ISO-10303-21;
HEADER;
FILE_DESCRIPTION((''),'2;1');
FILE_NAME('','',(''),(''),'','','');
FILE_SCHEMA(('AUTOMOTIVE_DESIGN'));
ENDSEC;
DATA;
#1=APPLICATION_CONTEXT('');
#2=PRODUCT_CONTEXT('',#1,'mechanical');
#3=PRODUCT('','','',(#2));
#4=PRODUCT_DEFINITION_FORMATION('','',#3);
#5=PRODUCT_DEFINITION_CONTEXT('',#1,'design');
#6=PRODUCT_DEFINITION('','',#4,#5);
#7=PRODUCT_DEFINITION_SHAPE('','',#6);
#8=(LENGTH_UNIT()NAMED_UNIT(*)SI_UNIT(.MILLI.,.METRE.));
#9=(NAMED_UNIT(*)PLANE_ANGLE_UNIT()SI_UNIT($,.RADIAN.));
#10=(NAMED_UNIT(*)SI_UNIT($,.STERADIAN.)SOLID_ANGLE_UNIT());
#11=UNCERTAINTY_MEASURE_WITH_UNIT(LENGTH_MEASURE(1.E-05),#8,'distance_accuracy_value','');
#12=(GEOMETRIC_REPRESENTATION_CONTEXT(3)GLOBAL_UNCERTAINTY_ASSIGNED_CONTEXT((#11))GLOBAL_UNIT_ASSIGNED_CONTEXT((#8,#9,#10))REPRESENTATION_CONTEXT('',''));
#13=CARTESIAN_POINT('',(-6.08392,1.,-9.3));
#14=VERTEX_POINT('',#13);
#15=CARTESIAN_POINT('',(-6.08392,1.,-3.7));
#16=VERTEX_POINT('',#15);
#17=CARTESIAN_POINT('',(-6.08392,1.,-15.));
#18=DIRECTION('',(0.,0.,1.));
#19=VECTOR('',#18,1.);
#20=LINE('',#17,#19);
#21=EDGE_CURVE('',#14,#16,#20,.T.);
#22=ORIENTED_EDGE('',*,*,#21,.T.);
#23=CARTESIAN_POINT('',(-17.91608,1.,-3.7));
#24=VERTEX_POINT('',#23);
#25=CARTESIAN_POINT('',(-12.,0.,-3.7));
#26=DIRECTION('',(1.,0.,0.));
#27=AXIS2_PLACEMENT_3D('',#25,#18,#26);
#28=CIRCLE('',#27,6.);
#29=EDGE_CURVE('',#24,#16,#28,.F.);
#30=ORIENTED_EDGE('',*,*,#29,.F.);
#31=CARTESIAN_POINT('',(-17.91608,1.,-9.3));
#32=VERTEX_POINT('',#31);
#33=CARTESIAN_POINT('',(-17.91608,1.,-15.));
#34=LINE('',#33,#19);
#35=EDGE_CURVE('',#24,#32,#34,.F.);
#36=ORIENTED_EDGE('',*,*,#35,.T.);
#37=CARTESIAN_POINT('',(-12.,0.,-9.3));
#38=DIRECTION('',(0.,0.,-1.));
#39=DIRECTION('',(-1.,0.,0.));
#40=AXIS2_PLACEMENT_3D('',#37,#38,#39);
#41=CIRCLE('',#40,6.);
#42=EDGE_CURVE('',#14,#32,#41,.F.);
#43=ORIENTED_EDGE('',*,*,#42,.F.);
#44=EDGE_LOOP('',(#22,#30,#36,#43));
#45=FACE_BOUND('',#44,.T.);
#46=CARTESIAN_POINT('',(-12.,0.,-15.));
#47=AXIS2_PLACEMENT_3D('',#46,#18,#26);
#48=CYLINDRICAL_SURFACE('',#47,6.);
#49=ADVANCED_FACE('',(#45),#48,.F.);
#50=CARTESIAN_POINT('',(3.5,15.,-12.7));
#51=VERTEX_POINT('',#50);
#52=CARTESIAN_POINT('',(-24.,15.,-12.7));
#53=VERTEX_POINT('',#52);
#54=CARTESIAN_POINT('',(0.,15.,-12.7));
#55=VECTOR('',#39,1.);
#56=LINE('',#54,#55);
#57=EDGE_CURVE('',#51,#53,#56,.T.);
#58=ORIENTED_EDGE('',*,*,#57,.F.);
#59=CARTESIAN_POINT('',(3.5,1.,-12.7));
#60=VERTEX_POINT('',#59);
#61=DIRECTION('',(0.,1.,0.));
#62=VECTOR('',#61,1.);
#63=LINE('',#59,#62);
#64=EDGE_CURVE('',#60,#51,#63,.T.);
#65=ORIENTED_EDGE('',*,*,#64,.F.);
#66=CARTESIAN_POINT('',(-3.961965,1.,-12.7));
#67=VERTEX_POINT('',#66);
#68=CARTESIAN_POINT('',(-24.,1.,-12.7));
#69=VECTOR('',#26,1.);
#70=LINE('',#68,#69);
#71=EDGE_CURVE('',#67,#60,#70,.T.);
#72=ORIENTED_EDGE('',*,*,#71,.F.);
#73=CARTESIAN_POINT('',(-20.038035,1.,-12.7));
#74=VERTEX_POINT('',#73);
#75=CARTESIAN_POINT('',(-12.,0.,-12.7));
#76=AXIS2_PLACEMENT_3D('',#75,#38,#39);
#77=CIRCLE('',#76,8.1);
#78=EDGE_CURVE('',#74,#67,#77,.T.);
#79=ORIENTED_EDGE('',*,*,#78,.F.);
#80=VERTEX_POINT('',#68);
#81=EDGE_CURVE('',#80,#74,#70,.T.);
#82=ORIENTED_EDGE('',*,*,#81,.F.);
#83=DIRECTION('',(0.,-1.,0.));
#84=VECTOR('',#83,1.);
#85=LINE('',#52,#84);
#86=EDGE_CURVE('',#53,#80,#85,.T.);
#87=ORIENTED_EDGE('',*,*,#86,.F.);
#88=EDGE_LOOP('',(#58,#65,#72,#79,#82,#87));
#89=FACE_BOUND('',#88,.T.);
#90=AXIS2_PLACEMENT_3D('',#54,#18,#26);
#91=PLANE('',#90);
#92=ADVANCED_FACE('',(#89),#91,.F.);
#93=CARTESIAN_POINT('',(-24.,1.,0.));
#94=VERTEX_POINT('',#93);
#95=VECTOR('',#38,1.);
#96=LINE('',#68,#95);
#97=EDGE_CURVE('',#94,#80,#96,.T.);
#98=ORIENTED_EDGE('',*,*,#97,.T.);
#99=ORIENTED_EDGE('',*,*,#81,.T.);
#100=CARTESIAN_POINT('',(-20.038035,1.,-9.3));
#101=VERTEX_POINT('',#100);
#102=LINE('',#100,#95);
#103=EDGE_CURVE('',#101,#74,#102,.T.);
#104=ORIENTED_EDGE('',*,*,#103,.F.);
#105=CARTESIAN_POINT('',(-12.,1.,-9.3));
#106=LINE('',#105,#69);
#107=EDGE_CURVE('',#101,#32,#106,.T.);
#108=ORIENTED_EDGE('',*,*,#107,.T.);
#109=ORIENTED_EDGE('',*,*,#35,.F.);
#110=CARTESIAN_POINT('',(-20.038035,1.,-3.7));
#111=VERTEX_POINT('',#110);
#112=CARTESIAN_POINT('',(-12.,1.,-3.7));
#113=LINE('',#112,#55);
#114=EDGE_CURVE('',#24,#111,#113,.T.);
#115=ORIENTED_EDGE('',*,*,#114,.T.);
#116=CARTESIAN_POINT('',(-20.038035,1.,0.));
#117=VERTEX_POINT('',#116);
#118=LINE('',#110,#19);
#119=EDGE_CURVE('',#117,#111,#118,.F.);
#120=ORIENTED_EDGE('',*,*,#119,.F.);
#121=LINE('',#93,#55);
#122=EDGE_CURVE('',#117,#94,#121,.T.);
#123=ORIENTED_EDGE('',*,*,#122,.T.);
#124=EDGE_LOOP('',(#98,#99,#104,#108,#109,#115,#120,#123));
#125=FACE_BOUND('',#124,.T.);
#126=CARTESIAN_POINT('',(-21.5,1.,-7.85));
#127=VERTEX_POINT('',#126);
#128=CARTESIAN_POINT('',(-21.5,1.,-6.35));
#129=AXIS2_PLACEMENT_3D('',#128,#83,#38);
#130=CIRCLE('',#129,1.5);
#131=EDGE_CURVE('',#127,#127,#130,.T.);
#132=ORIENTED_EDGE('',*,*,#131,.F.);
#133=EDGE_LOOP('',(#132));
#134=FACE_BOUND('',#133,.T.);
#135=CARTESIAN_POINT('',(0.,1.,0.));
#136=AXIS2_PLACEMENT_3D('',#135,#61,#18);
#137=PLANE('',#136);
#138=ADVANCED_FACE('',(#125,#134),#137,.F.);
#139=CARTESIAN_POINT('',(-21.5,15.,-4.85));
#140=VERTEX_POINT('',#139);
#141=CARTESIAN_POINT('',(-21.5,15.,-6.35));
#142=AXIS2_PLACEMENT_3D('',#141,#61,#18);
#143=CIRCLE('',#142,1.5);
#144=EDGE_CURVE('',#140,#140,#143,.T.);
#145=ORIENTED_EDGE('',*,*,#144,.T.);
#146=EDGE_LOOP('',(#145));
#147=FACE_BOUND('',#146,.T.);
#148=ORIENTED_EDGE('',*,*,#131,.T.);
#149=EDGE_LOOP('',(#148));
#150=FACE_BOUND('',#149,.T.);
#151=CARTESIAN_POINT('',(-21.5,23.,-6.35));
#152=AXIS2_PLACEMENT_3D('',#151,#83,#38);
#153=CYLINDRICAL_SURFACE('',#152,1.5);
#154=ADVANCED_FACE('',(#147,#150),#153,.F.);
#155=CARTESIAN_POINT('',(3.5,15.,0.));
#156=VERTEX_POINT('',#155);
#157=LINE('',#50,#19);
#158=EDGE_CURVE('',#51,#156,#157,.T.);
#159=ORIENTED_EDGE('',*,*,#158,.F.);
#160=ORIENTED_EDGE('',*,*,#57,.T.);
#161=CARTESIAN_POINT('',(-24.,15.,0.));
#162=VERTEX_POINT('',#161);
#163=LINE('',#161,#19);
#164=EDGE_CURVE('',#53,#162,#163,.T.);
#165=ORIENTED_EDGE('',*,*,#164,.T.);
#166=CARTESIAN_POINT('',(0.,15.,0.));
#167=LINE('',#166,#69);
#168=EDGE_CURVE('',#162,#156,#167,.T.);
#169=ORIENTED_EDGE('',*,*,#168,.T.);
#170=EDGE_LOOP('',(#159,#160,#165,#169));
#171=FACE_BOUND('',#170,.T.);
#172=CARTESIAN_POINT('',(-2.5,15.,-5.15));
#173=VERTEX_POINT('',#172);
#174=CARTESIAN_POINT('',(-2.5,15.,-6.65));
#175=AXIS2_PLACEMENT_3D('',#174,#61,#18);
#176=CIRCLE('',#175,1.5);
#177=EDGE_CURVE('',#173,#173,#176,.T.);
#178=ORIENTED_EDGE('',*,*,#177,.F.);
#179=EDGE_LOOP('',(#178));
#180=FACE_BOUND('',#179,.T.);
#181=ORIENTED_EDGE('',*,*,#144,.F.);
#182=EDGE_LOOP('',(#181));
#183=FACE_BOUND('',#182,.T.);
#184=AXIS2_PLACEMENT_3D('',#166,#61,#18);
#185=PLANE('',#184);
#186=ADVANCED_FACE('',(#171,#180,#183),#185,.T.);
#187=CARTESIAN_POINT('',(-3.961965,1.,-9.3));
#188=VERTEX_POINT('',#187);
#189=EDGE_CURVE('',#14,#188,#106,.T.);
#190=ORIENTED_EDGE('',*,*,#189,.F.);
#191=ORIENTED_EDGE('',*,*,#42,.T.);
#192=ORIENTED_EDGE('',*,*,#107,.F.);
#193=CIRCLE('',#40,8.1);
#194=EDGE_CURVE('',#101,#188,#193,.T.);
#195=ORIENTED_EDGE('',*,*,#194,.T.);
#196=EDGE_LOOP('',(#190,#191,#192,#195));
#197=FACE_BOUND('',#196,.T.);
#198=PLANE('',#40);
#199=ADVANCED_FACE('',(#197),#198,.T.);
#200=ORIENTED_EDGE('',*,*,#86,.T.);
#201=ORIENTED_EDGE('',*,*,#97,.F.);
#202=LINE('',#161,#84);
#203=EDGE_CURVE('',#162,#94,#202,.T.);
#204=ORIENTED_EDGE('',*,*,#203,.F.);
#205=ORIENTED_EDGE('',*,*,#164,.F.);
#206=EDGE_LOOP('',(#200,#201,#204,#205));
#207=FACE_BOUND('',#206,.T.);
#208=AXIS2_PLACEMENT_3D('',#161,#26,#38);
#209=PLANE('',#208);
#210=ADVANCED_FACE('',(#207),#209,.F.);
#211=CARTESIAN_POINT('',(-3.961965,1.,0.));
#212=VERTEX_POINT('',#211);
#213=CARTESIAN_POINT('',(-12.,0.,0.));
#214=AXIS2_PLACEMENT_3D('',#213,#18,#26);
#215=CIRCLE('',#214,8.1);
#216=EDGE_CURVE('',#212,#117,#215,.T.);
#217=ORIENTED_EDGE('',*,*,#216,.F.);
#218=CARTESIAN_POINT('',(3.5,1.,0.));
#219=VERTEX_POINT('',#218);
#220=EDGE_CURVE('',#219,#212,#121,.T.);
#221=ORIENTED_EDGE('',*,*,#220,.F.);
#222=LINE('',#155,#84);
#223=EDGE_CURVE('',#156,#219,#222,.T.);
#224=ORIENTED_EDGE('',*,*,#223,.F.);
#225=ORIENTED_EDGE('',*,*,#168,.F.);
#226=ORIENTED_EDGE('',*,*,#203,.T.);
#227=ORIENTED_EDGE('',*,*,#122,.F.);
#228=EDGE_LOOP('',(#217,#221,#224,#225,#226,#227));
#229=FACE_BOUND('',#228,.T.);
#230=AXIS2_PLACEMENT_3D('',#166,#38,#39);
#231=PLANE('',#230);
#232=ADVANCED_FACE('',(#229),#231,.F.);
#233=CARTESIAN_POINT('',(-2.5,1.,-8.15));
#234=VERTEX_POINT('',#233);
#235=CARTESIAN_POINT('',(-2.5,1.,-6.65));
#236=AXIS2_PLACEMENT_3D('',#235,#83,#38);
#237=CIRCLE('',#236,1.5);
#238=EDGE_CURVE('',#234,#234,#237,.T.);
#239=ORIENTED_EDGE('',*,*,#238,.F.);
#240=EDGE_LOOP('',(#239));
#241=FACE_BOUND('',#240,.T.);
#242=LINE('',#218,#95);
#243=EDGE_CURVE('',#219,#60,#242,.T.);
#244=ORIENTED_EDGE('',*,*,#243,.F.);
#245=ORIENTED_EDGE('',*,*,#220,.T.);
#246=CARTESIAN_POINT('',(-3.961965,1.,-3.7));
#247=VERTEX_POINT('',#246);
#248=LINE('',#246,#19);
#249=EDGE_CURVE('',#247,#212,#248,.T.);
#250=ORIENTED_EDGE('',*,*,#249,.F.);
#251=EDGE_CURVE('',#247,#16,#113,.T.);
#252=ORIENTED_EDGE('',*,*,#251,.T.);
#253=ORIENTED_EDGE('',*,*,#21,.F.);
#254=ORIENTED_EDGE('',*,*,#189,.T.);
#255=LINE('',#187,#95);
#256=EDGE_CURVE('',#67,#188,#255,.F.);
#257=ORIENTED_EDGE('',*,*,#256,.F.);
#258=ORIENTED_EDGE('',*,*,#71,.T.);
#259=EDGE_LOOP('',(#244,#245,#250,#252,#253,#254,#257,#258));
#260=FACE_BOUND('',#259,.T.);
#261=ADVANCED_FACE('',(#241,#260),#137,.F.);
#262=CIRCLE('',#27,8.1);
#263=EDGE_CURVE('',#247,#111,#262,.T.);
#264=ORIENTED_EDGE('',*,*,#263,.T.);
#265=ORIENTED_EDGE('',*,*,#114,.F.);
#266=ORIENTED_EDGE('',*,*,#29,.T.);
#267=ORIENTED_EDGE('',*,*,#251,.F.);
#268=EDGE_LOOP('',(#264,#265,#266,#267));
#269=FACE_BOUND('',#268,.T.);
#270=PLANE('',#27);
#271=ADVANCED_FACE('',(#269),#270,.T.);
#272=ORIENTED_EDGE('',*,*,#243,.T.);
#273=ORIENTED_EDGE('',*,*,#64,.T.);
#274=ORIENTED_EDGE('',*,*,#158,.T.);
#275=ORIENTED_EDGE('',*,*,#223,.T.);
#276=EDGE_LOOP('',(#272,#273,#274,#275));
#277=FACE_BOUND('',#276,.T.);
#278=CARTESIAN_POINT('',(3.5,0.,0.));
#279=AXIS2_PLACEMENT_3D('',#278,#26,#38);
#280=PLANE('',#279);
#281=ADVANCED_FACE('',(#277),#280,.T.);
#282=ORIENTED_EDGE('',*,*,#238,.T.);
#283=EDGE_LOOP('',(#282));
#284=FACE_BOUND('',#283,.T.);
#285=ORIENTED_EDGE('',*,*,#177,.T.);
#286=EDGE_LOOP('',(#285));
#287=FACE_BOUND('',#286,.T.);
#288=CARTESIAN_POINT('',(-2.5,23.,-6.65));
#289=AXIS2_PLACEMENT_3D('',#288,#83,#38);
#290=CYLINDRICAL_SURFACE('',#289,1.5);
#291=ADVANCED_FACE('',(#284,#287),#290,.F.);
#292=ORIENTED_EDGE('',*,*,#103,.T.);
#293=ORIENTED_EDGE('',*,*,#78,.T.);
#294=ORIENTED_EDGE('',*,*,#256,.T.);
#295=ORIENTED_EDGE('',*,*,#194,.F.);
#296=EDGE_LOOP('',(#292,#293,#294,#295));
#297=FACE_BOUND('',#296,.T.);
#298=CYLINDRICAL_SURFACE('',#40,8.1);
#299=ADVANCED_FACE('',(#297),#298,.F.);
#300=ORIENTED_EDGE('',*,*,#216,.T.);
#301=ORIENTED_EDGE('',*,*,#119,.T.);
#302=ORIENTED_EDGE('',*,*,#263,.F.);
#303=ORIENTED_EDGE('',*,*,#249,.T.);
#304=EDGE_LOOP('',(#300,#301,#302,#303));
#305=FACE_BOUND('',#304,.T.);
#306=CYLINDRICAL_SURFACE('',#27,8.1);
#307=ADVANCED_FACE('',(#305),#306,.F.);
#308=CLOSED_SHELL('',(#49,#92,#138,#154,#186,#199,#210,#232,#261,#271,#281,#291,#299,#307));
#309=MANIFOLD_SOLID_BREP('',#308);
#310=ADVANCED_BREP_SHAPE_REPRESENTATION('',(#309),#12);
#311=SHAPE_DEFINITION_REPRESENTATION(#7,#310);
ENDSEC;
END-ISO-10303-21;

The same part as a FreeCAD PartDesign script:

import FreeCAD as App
import Part
import Sketcher

V = App.Vector


def add_polygon(sketch, points):
    """Adds a closed chain of lines whose ends are joined by coincident constraints."""
    first, n = sketch.GeometryCount, len(points)
    for a, b in zip(points, points[1:] + points[:1]):
        sketch.addGeometry(Part.LineSegment(App.Vector(*a, 0), App.Vector(*b, 0)), False)
    for i in range(n):
        sketch.addConstraint(Sketcher.Constraint("Coincident", first + i, 2, first + (i + 1) % n, 1))

doc = App.newDocument("Part")
body = doc.addObject("PartDesign::Body", "Body")

# Sketch on XZ plane
sketch1 = doc.addObject("Sketcher::SketchObject", "Sketch")
body.addObject(sketch1)
sketch1.AttachmentSupport = (doc.XZ_Plane, [""])
sketch1.MapMode = "FlatFace"
add_polygon(sketch1, [(-24, -13), (-24, 0), (0, 0), (0, -13)])  # lines 0-3
sketch1.addConstraint([
    Sketcher.Constraint("Vertical", 0),
    Sketcher.Constraint("Horizontal", 1),
    Sketcher.Constraint("Vertical", 2),
    Sketcher.Constraint("Horizontal", 3),
    Sketcher.Constraint("Coincident", 1, 2, -1, 1),
    Sketcher.Constraint("DistanceX", 1, 1, 1, 2, 24.0),
    Sketcher.Constraint("DistanceY", 0, 1, 0, 2, 12.7),
])
pad1 = doc.addObject("PartDesign::Pad", "Pad")
body.addObject(pad1)
pad1.Profile = sketch1
pad1.Length = 15
pad1.Reversed = True

# Sketch on XY plane
sketch2 = doc.addObject("Sketcher::SketchObject", "Sketch001")
body.addObject(sketch2)
sketch2.AttachmentSupport = (doc.XY_Plane, [""])
sketch2.MapMode = "FlatFace"
sketch2.addGeometry(Part.Circle(V(-12, 0, 0), V(0, 0, 1), 6), False)
sketch2.addConstraint([
    Sketcher.Constraint("PointOnObject", 0, 3, -1),
    Sketcher.Constraint("Diameter", 0, 12.0),
    Sketcher.Constraint("DistanceX", 0, 3, -1, 1, 12.0),
])
pocket1 = doc.addObject("PartDesign::Pocket", "Pocket")
body.addObject(pocket1)
pocket1.Profile = sketch2
pocket1.Length = 15

# Sketch on XY plane
sketch3 = doc.addObject("Sketcher::SketchObject", "Sketch002")
body.addObject(sketch3)
sketch3.AttachmentSupport = (doc.XY_Plane, [""])
sketch3.MapMode = "FlatFace"
sketch3.addGeometry(Part.Circle(V(-12, 0, 0), V(0, 0, 1), 8), False)
sketch3.addConstraint([
    Sketcher.Constraint("PointOnObject", 0, 3, -1),
    Sketcher.Constraint("Diameter", 0, 16.2),
    Sketcher.Constraint("DistanceX", 0, 3, -1, 1, 12.0),
])
pocket2 = doc.addObject("PartDesign::Pocket", "Pocket001")
body.addObject(pocket2)
pocket2.Profile = sketch3
pocket2.Length = 3.7

# Sketch on XY plane
sketch4 = doc.addObject("Sketcher::SketchObject", "Sketch003")
body.addObject(sketch4)
sketch4.AttachmentSupport = (doc.XY_Plane, [""])
sketch4.MapMode = "FlatFace"
sketch4.AttachmentOffset = App.Placement(V(0, 0, -9.3), App.Rotation())
sketch4.addGeometry(Part.Circle(V(-12, 0, 0), V(0, 0, 1), 8), False)
sketch4.addConstraint([
    Sketcher.Constraint("PointOnObject", 0, 3, -1),
    Sketcher.Constraint("Diameter", 0, 16.2),
    Sketcher.Constraint("DistanceX", 0, 3, -1, 1, 12.0),
])
pocket3 = doc.addObject("PartDesign::Pocket", "Pocket002")
body.addObject(pocket3)
pocket3.Profile = sketch4
pocket3.Length = 3.4

# Sketch on XZ plane
sketch5 = doc.addObject("Sketcher::SketchObject", "Sketch004")
body.addObject(sketch5)
sketch5.AttachmentSupport = (doc.XZ_Plane, [""])
sketch5.MapMode = "FlatFace"
add_polygon(sketch5, [(-24, 0), (-24, -13), (0, -13), (0, 0)])  # lines 0-3
sketch5.addConstraint([
    Sketcher.Constraint("Vertical", 0),
    Sketcher.Constraint("Horizontal", 1),
    Sketcher.Constraint("Vertical", 2),
    Sketcher.Constraint("Horizontal", 3),
    Sketcher.Constraint("Coincident", 2, 2, -1, 1),
    Sketcher.Constraint("DistanceX", 1, 1, 1, 2, 24.0),
    Sketcher.Constraint("DistanceY", 0, 2, 0, 1, 12.7),
])
pocket4 = doc.addObject("PartDesign::Pocket", "Pocket003")
body.addObject(pocket4)
pocket4.Profile = sketch5
pocket4.Length = 1

# Sketch on XZ plane
sketch6 = doc.addObject("Sketcher::SketchObject", "Sketch005")
body.addObject(sketch6)
sketch6.AttachmentSupport = (doc.XZ_Plane, [""])
sketch6.MapMode = "FlatFace"
sketch6.AttachmentOffset = App.Placement(V(0, 0, -1), App.Rotation())
sketch6.addGeometry([
    Part.Circle(V(-21.5, -6.3, 0), V(0, 0, 1), 1.5),
    Part.Circle(V(-2.5, -6.7, 0), V(0, 0, 1), 1.5),
], False)
sketch6.addConstraint([
    Sketcher.Constraint("Equal", 0, 1),
    Sketcher.Constraint("Diameter", 0, 3.0),
    Sketcher.Constraint("DistanceX", 0, 3, 1, 3, 19.0),
    Sketcher.Constraint("DistanceX", 0, 3, -1, 1, 21.5),
    Sketcher.Constraint("DistanceY", 1, 3, 0, 3, 0.3),
    Sketcher.Constraint("DistanceY", 0, 3, -1, 1, 6.35),
])
pocket5 = doc.addObject("PartDesign::Pocket", "Pocket004")
body.addObject(pocket5)
pocket5.Profile = sketch6
pocket5.Length = 22

# Sketch on YZ plane
sketch7 = doc.addObject("Sketcher::SketchObject", "Sketch006")
body.addObject(sketch7)
sketch7.AttachmentSupport = (doc.YZ_Plane, [""])
sketch7.MapMode = "FlatFace"
add_polygon(sketch7, [(15, 0), (1, 0), (1, -13), (15, -13)])  # lines 0-3
sketch7.addConstraint([
    Sketcher.Constraint("Horizontal", 0),
    Sketcher.Constraint("Vertical", 1),
    Sketcher.Constraint("Horizontal", 2),
    Sketcher.Constraint("Vertical", 3),
    Sketcher.Constraint("PointOnObject", 0, 2, -1),
    Sketcher.Constraint("DistanceX", 0, 2, 0, 1, 14.0),
    Sketcher.Constraint("DistanceY", 1, 2, 1, 1, 12.7),
    Sketcher.Constraint("DistanceX", -1, 1, 0, 2, 1.0),
])
pad2 = doc.addObject("PartDesign::Pad", "Pad001")
body.addObject(pad2)
pad2.Profile = sketch7
pad2.Length = 3.5

doc.recompute()
